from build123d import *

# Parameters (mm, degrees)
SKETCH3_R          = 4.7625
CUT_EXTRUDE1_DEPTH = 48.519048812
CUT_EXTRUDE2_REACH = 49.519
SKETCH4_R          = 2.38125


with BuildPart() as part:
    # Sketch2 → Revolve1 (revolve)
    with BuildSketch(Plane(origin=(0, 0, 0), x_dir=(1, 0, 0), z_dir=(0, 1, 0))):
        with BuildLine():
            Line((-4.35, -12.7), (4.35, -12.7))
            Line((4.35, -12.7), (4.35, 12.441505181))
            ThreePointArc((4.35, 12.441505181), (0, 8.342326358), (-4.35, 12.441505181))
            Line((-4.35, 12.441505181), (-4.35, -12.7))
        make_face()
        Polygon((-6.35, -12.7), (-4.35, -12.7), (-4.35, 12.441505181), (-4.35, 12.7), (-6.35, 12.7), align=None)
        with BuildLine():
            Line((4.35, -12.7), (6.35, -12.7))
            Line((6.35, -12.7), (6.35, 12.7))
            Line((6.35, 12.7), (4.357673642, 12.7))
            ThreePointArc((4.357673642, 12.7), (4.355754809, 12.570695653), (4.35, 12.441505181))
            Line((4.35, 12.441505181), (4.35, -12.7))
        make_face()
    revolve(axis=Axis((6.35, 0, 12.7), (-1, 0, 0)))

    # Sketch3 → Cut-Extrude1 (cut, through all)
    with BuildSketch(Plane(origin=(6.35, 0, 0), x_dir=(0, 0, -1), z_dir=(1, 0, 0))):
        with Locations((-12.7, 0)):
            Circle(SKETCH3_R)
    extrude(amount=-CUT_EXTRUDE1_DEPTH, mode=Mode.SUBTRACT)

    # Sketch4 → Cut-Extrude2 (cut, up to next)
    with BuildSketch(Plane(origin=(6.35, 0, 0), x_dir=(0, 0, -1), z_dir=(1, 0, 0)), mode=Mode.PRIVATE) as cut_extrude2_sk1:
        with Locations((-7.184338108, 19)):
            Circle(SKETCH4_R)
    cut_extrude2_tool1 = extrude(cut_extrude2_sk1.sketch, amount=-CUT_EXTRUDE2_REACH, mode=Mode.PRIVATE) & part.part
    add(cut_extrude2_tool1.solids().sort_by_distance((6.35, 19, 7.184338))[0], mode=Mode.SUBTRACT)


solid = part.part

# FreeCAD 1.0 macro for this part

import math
import FreeCAD as App
import Part
import Sketcher
from FreeCAD import Vector
Q = App.Units.Quantity

doc = App.newDocument("Part")
body = doc.addObject("PartDesign::Body", "Body")

# Sketch on XZ plane
sketch1 = body.newObject("Sketcher::SketchObject", "Sketch")
sketch1.AttachmentSupport = (doc.getObject("XZ_Plane"), [""])
sketch1.MapMode = "FlatFace"
sketch1.addGeometry([
    Part.ArcOfCircle(Part.Circle(Vector(0, -12.7, 0), Vector(0, 0, 1), 4.357674), math.radians(3.400751), math.radians(176.599249)),  # 0
    Part.LineSegment(Vector(-4.35, -12.441505, 0), Vector(-4.35, -12.7, 0)),  # 1
    Part.LineSegment(Vector(-4.35, -12.7, 0), Vector(-6.35, -12.7, 0)),  # 2
    Part.LineSegment(Vector(-6.35, -12.7, 0), Vector(-6.35, 12.7, 0)),  # 3
    Part.LineSegment(Vector(-6.35, 12.7, 0), Vector(6.35, 12.7, 0)),  # 4
    Part.LineSegment(Vector(6.35, 12.7, 0), Vector(6.35, -12.7, 0)),  # 5
    Part.LineSegment(Vector(6.35, -12.7, 0), Vector(4.357674, -12.7, 0)),  # 6
    Part.ArcOfCircle(Part.Circle(Vector(0, -12.7, 0), Vector(0, 0, 1), 4.357674), math.radians(0), math.radians(3.400751)),  # 7
], False)
sketch1.addGeometry(Part.LineSegment(Vector(6.35, 12.7, 0), Vector(-6.35, 12.7, 0)), True)  # axis
sketch1.addConstraint([
    Sketcher.Constraint("Coincident", 0, 2, 1, 1),
    Sketcher.Constraint("Coincident", 1, 2, 2, 1),
    Sketcher.Constraint("Coincident", 2, 2, 3, 1),
    Sketcher.Constraint("Coincident", 3, 2, 4, 1),
    Sketcher.Constraint("Coincident", 4, 2, 5, 1),
    Sketcher.Constraint("Coincident", 5, 2, 6, 1),
    Sketcher.Constraint("Coincident", 6, 2, 7, 1),
    Sketcher.Constraint("Tangent", 7, 2, 0, 1),
    Sketcher.Constraint("Vertical", 1),
    Sketcher.Constraint("Horizontal", 2),
    Sketcher.Constraint("Vertical", 3),
    Sketcher.Constraint("Horizontal", 4),
    Sketcher.Constraint("Vertical", 5),
    Sketcher.Constraint("Horizontal", 6),
    Sketcher.Constraint("Horizontal", 8),
    Sketcher.Constraint("Coincident", 8, 1, 4, 2),
    Sketcher.Constraint("Equal", 0, 7),
    Sketcher.Constraint("Symmetric", 2, 2, 4, 2, -1, 1),
    Sketcher.Constraint("Symmetric", 5, 2, 8, 2, -1, 1),
    Sketcher.Constraint("Symmetric", 0, 2, 7, 2, -2),
    Sketcher.Constraint("Horizontal", 7, 3, 1, 2),
    Sketcher.Constraint("DistanceY", 3, 1, 3, 2, Q("1 in")),
    Sketcher.Constraint("DistanceX", 4, 1, 4, 2, Q("0.5 in")),
    Sketcher.Constraint("DistanceX", 2, 2, 2, 1, Q("2 mm")),
    Sketcher.Constraint("Radius", 0, Q("4.357674 mm")),
])
revolution = body.newObject("PartDesign::Revolution", "Revolution")
revolution.Profile = sketch1
revolution.ReferenceAxis = (sketch1, ["Axis0"])
revolution.Angle = 360

# Sketch on YZ plane
sketch2 = body.newObject("Sketcher::SketchObject", "Sketch001")
sketch2.AttachmentSupport = (doc.getObject("YZ_Plane"), [""])
sketch2.MapMode = "FlatFace"
sketch2.AttachmentOffset = App.Placement(Vector(0, 0, 0.25 * 25.4), App.Rotation())
sketch2.addGeometry(Part.Circle(Vector(0, 12.7, 0), Vector(0, 0, 1), 4.7625), False)
sketch2.addConstraint([
    Sketcher.Constraint("PointOnObject", 0, 3, -2),
    Sketcher.Constraint("Diameter", 0, Q("0.375 in")),
    Sketcher.Constraint("DistanceY", -1, 1, 0, 3, Q("0.5 in")),
])
pocket1 = body.newObject("PartDesign::Pocket", "Pocket")
pocket1.Profile = sketch2
pocket1.Type = "ThroughAll"

# Sketch on YZ plane
sketch3 = body.newObject("Sketcher::SketchObject", "Sketch002")
sketch3.AttachmentSupport = (doc.getObject("YZ_Plane"), [""])
sketch3.MapMode = "FlatFace"
sketch3.AttachmentOffset = App.Placement(Vector(0, 0, 0.25 * 25.4), App.Rotation())
sketch3.addGeometry(Part.Circle(Vector(19, 7.184338, 0), Vector(0, 0, 1), 2.38125), False)
sketch3.addConstraint([
    Sketcher.Constraint("Diameter", 0, Q("0.1875 in")),
    Sketcher.Constraint("DistanceX", -1, 1, 0, 3, Q("19 mm")),
    Sketcher.Constraint("DistanceY", -1, 1, 0, 3, Q("7.184338 mm")),
])
pocket2 = body.newObject("PartDesign::Pocket", "Pocket001")
pocket2.Profile = sketch3
pocket2.Type = "UpToFirst"

doc.recompute()
